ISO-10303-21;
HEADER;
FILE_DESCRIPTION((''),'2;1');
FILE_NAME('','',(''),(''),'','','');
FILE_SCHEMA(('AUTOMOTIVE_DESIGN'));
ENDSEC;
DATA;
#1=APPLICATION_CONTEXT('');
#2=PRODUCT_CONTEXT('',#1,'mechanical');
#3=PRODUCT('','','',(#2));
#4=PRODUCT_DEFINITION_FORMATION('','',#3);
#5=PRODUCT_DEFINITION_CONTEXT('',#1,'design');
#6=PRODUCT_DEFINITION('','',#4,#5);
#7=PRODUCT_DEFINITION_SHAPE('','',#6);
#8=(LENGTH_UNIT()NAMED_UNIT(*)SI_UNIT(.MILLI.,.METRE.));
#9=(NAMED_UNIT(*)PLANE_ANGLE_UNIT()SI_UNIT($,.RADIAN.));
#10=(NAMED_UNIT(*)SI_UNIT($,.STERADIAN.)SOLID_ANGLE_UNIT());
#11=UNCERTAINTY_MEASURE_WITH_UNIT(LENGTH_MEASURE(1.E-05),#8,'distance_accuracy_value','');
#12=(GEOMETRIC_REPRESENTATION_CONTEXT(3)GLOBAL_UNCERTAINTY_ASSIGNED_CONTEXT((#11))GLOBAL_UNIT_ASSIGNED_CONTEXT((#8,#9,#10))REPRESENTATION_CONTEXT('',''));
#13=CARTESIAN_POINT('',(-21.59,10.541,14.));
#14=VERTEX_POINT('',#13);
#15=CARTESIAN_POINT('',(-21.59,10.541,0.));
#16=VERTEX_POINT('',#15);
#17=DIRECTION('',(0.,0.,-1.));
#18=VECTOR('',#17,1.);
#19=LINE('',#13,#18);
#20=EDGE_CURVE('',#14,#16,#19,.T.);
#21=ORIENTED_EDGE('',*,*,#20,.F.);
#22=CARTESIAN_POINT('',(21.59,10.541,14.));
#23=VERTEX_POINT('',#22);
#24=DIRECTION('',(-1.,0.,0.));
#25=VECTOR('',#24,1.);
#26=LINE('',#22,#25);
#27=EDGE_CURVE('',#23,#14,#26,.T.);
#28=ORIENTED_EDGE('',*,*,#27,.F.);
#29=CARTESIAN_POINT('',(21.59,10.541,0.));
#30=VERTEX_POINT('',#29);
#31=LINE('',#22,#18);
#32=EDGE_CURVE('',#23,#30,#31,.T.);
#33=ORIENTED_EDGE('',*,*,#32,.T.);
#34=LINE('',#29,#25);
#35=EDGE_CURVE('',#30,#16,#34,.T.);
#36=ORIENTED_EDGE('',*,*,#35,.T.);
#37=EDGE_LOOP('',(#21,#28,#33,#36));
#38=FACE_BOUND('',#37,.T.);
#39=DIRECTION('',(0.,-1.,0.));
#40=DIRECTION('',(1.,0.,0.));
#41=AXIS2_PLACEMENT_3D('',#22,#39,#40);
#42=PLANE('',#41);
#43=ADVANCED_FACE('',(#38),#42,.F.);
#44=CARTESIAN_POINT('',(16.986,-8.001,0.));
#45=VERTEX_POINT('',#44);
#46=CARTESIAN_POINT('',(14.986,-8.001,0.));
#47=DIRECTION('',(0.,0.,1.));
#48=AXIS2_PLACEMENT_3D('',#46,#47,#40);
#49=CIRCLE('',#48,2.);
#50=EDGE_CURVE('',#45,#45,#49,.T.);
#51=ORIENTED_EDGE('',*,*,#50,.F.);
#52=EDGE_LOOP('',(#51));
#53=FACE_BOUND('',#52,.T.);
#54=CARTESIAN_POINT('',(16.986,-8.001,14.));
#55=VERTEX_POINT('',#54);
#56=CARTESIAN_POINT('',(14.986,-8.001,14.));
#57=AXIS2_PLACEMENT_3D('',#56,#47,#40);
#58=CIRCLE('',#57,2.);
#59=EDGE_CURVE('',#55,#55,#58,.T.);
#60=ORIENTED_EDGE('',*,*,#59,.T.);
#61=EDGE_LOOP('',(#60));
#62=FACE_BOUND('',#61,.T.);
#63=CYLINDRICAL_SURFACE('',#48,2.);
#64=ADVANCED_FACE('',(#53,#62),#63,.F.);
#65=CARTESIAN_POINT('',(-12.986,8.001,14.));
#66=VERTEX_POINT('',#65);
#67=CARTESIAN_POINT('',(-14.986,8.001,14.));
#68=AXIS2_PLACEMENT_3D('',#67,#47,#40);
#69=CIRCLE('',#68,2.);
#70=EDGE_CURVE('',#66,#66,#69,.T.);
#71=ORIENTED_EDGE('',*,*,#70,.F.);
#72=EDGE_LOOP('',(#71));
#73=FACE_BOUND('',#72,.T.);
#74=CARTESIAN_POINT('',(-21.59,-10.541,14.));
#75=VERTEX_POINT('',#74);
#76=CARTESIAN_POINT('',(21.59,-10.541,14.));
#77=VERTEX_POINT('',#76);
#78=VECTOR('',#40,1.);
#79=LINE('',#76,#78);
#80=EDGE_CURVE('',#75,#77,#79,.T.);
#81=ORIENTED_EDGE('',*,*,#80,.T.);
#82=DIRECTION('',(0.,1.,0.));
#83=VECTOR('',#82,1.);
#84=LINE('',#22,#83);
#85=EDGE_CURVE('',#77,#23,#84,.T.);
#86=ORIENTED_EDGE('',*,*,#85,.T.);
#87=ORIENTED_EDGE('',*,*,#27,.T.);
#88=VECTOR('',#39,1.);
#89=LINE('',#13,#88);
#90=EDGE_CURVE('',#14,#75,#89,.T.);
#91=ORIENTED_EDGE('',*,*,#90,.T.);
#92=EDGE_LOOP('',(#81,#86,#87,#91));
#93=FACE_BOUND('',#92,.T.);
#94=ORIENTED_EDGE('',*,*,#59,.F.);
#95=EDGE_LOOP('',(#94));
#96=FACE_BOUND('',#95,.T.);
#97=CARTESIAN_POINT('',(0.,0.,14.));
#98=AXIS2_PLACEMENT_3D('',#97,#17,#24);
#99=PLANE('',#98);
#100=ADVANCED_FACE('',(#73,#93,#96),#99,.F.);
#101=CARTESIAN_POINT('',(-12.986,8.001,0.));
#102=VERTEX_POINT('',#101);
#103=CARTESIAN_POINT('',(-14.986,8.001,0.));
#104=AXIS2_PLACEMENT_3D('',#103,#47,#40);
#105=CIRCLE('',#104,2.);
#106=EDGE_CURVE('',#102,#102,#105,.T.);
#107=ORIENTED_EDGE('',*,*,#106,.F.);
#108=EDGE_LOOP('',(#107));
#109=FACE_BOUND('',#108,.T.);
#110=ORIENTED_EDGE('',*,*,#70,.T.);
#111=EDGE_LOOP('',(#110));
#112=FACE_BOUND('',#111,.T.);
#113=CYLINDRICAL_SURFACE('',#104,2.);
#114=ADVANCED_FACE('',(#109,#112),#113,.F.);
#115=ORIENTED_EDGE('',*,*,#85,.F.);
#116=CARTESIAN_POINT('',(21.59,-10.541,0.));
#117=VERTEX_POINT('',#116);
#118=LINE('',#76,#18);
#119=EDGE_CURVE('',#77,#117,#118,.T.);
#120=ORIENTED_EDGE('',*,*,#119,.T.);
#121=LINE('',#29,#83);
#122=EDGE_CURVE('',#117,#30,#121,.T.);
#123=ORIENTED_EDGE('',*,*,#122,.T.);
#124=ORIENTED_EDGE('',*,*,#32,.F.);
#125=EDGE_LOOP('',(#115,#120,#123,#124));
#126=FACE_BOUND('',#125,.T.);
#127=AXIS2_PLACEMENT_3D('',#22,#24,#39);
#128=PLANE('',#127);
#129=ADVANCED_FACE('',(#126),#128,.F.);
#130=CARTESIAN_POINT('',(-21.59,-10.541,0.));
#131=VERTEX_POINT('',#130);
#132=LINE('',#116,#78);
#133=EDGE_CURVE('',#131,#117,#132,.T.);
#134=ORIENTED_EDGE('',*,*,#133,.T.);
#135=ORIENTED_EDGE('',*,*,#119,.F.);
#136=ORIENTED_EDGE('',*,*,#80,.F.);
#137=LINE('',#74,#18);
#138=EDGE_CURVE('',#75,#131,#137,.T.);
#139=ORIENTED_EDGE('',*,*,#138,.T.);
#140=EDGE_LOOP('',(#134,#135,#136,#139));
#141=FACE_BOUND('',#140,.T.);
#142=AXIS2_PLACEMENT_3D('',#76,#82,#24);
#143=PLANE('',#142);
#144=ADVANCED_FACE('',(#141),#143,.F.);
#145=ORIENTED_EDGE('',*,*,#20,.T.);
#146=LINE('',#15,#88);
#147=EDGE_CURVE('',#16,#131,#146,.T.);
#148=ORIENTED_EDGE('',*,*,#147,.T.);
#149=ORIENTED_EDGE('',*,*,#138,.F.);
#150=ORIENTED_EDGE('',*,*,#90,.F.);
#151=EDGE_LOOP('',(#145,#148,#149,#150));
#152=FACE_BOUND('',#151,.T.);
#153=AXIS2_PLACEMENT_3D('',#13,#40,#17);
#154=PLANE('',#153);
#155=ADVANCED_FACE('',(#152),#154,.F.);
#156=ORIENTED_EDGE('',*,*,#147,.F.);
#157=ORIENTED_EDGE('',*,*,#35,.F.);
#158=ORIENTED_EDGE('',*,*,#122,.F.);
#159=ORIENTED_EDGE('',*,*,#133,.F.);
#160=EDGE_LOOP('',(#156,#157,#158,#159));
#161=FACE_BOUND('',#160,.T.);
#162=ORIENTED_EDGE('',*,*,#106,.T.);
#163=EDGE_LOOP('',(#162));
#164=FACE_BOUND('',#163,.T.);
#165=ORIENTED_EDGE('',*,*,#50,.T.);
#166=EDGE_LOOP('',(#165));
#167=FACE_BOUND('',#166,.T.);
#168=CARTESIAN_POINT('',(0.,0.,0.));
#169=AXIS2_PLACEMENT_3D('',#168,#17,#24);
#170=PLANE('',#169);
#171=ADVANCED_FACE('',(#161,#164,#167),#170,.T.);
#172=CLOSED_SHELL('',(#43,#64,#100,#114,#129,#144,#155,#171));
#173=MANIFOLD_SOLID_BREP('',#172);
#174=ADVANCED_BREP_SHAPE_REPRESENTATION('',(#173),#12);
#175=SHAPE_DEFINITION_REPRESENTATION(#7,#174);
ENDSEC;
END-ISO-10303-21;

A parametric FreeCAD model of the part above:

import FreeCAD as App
import Part
import Sketcher
Q = App.Units.Quantity


def add_polygon(sketch, points):
    """Adds a closed chain of lines whose ends are joined by coincident constraints."""
    first, n = sketch.GeometryCount, len(points)
    for a, b in zip(points, points[1:] + points[:1]):
        sketch.addGeometry(Part.LineSegment(App.Vector(*a, 0), App.Vector(*b, 0)), False)
    for i in range(n):
        sketch.addConstraint(Sketcher.Constraint("Coincident", first + i, 2, first + (i + 1) % n, 1))

doc = App.newDocument("Part")
params = doc.addObject("Spreadsheet::Sheet", "Params")
for row, (alias, value) in enumerate([
    ("sketch1_width", "43.18 mm"),
    ("pad1_length", "14 mm"),
    ("sketch2_diameter", "4 mm"),
], start=1):
    params.set(f"A{row}", alias)
    params.set(f"B{row}", "=" + value)
    params.setAlias(f"B{row}", alias)

body = doc.addObject("PartDesign::Body", "Body")

# Sketch on XY plane
sketch1 = body.newObject("Sketcher::SketchObject", "Sketch")
sketch1.AttachmentSupport = (doc.getObject("XY_Plane"), [""])
sketch1.MapMode = "FlatFace"
add_polygon(sketch1, [(-22, 11), (-22, -11), (22, -11), (22, 11)])  # lines 0-3
sketch1.addConstraint([
    Sketcher.Constraint("Vertical", 0),
    Sketcher.Constraint("Horizontal", 1),
    Sketcher.Constraint("Vertical", 2),
    Sketcher.Constraint("Horizontal", 3),
    Sketcher.Constraint("Symmetric", 0, 2, 2, 2, -1, 1),
    Sketcher.Constraint("DistanceX", 1, 1, 1, 2, Q("43.18 mm")),
    Sketcher.Constraint("DistanceY", 0, 2, 0, 1, Q("21.082 mm")),
])
sketch1.setExpression("Constraints[9]", "Params.sketch1_width")
pad1 = body.newObject("PartDesign::Pad", "Pad")
pad1.Profile = sketch1
pad1.setExpression("Length", "Params.pad1_length")

# Sketch on XY plane
sketch2 = body.newObject("Sketcher::SketchObject", "Sketch001")
sketch2.AttachmentSupport = (doc.getObject("XY_Plane"), [""])
sketch2.MapMode = "FlatFace"
sketch2.AttachmentOffset = App.Placement(App.Vector(0, 0, 14), App.Rotation())
sketch2.addGeometry([
    Part.Circle(App.Vector(-15, 8, 0), App.Vector(0, 0, 1), 2),
    Part.Circle(App.Vector(15, -8, 0), App.Vector(0, 0, 1), 2),
], False)
sketch2.addConstraint([
    Sketcher.Constraint("Equal", 0, 1),
    Sketcher.Constraint("Symmetric", 0, 3, 1, 3, -1, 1),
    Sketcher.Constraint("Diameter", 0, Q("4 mm")),
    Sketcher.Constraint("DistanceX", 0, 3, -1, 1, Q("14.986 mm")),
    Sketcher.Constraint("DistanceY", -1, 1, 0, 3, Q("8.001 mm")),
])
sketch2.setExpression("Constraints[2]", "Params.sketch2_diameter")
pocket1 = body.newObject("PartDesign::Pocket", "Pocket")
pocket1.Profile = sketch2
pocket1.Type = "ThroughAll"

doc.recompute()
